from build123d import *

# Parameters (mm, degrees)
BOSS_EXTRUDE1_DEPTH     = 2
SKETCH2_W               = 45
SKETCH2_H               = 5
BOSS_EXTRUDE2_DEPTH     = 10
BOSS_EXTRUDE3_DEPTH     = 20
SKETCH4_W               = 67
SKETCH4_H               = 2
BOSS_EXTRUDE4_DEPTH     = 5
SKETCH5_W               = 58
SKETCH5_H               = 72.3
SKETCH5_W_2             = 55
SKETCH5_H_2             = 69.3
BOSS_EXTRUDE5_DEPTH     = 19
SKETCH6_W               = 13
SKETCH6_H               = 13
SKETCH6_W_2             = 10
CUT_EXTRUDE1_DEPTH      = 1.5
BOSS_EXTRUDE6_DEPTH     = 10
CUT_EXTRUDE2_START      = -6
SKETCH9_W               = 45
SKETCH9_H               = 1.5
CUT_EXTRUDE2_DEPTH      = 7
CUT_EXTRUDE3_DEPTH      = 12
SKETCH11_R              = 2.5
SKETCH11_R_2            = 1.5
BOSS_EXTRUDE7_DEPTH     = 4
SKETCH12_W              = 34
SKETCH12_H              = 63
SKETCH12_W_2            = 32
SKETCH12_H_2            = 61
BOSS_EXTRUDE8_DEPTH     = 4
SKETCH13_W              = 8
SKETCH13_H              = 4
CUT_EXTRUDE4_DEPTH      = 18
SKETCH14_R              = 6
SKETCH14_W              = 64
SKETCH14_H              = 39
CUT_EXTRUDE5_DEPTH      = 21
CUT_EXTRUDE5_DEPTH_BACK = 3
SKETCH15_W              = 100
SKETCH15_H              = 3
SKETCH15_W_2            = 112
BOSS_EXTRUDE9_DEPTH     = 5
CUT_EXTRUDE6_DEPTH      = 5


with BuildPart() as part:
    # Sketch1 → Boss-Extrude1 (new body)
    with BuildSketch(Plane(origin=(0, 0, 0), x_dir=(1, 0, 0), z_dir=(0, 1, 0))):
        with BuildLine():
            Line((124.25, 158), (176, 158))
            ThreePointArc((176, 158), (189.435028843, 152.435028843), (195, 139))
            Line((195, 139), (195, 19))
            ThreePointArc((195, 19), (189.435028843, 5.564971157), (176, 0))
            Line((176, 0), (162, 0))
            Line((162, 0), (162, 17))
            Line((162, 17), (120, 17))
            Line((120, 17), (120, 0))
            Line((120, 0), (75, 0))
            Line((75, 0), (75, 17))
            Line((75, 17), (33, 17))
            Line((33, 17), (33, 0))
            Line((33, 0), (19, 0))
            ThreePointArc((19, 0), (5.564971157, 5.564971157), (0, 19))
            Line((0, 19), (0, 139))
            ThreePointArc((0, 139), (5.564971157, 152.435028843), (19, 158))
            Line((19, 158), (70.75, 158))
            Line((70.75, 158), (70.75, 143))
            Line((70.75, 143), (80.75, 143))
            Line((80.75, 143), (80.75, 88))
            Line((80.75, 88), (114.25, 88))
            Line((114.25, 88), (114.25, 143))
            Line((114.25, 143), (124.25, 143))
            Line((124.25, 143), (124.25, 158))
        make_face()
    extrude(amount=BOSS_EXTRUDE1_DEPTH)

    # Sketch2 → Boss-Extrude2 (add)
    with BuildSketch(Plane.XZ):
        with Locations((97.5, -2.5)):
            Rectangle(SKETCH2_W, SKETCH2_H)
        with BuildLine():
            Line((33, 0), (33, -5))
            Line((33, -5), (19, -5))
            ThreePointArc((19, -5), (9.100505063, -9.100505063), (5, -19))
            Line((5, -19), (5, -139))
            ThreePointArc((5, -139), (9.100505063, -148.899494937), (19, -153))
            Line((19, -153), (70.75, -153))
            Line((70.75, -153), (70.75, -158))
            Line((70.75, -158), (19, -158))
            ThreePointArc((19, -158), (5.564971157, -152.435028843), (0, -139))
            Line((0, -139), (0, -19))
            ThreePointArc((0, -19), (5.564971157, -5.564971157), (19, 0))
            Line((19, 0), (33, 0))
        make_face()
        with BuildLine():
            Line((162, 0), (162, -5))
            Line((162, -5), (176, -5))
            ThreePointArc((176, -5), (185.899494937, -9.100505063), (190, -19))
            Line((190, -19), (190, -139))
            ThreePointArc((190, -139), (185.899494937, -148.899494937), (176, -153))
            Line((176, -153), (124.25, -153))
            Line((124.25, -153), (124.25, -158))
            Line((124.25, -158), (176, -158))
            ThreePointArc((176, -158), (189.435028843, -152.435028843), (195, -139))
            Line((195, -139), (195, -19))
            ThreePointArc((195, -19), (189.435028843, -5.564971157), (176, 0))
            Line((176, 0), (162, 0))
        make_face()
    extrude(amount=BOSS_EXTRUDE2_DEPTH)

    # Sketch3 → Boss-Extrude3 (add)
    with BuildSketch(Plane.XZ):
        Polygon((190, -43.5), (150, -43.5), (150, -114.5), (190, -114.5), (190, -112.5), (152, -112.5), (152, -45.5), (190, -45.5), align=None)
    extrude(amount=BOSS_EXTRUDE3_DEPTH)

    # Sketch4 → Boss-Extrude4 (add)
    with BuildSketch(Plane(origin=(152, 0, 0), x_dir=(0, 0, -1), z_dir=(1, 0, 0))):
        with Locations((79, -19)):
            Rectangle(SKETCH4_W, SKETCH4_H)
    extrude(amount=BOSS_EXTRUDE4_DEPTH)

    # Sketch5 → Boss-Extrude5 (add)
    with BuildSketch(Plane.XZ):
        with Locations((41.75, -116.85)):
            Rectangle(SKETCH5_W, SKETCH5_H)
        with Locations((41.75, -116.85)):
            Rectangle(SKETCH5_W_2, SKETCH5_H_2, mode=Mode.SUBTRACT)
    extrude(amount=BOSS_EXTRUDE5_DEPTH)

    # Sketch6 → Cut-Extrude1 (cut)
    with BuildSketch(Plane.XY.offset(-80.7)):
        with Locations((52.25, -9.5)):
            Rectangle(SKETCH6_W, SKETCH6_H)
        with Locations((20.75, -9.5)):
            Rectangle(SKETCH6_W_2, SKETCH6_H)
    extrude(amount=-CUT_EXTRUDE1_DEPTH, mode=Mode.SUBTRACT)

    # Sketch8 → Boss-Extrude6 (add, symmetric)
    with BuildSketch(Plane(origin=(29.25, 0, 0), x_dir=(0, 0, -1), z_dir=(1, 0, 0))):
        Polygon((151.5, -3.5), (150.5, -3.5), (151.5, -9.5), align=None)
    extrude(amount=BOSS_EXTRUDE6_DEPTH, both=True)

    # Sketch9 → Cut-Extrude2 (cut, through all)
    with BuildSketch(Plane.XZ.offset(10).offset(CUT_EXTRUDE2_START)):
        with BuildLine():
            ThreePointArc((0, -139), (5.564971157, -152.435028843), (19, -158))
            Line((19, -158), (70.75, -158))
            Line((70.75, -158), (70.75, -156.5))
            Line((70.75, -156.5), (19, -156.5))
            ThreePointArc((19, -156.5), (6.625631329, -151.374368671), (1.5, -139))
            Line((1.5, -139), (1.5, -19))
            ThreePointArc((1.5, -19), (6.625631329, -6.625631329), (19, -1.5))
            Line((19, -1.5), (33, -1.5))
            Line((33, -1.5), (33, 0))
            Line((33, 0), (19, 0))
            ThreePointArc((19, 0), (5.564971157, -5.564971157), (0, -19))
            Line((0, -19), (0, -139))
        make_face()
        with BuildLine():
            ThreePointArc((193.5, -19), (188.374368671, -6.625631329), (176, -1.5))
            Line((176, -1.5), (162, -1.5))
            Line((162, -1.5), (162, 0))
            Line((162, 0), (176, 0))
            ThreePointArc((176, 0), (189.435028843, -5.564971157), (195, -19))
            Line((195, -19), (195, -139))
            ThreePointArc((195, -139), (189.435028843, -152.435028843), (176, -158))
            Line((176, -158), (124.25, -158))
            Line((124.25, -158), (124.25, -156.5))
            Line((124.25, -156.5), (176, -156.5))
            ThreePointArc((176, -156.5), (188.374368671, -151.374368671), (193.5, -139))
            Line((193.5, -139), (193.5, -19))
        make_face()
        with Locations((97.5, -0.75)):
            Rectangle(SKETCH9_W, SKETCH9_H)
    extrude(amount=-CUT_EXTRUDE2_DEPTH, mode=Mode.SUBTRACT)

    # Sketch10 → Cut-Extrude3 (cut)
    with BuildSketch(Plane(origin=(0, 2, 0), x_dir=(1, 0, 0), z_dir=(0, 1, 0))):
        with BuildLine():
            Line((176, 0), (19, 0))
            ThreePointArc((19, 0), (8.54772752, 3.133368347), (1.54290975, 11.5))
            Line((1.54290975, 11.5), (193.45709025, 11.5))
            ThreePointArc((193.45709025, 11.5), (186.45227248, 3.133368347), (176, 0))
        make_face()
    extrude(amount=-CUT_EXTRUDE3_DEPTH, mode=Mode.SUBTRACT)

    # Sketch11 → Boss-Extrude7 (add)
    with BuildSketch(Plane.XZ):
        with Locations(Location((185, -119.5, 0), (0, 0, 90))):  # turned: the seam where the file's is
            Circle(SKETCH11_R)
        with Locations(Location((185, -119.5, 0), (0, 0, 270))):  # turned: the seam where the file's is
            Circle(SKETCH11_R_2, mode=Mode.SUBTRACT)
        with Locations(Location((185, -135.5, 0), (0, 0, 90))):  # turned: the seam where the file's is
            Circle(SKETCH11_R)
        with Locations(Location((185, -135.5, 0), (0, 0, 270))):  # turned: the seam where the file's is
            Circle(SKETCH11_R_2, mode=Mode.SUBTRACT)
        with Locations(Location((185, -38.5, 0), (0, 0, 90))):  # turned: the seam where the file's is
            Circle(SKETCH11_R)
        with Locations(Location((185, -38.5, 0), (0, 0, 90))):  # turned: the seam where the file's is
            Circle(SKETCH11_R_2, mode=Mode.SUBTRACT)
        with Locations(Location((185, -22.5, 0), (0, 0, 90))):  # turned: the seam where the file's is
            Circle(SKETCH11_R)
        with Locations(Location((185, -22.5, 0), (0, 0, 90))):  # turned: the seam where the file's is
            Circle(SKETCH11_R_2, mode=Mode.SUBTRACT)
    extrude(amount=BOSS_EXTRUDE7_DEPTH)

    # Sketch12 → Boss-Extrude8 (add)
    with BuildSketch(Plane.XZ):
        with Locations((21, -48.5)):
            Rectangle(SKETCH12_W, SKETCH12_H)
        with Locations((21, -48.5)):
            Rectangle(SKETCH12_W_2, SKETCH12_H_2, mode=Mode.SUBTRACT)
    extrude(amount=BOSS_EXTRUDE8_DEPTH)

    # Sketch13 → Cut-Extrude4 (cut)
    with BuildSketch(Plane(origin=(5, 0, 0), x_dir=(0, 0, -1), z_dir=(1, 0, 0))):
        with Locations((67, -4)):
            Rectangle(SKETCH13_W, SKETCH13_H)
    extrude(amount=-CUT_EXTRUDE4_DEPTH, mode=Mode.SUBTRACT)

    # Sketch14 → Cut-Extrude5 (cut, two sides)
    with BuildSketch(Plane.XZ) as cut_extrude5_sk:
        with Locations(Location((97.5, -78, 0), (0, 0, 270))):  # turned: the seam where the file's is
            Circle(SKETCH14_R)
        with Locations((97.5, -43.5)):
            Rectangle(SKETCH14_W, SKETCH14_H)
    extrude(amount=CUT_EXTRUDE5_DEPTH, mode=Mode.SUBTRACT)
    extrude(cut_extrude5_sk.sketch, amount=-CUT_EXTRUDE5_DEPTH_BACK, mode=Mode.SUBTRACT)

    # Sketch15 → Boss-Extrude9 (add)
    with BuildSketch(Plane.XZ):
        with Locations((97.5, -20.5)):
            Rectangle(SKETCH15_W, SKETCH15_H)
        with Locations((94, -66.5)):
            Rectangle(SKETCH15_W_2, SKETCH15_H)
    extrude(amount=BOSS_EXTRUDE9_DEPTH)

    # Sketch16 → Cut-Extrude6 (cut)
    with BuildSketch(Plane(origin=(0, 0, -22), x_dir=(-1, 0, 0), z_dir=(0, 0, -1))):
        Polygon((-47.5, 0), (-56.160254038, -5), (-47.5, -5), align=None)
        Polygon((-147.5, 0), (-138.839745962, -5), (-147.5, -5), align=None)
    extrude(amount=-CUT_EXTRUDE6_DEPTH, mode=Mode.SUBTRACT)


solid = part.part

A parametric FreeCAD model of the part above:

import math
import FreeCAD as App
import Part
import Sketcher
from FreeCAD import Vector
Q = App.Units.Quantity

doc = App.newDocument("Part")
body = doc.addObject("PartDesign::Body", "Body")

sketch1 = body.newObject("Sketcher::SketchObject", "Sketch")
sketch1.AttachmentSupport = (doc.getObject("XZ_Plane"), [""])
sketch1.MapMode = "FlatFace"
sketch1.addGeometry([
    Part.LineSegment(Vector(176, -158, 0), Vector(124, -158, 0)),
    Part.LineSegment(Vector(124, -158, 0), Vector(124, -143, 0)),
    Part.LineSegment(Vector(124, -143, 0), Vector(114, -143, 0)),
    Part.LineSegment(Vector(114, -143, 0), Vector(114, -88, 0)),
    Part.LineSegment(Vector(114, -88, 0), Vector(81, -88, 0)),
    Part.LineSegment(Vector(81, -88, 0), Vector(81, -143, 0)),
    Part.LineSegment(Vector(81, -143, 0), Vector(71, -143, 0)),
    Part.LineSegment(Vector(71, -143, 0), Vector(71, -158, 0)),
    Part.LineSegment(Vector(71, -158, 0), Vector(19, -158, 0)),
    Part.ArcOfCircle(Part.Circle(Vector(19, -139, 0), Vector(0, 0, 1), 19), math.radians(180), math.radians(270)),
    Part.LineSegment(Vector(0, -139, 0), Vector(0, -19, 0)),
    Part.ArcOfCircle(Part.Circle(Vector(19, -19, 0), Vector(0, 0, 1), 19), math.radians(90), math.radians(180)),
    Part.LineSegment(Vector(19, 0, 0), Vector(33, 0, 0)),
    Part.LineSegment(Vector(33, 0, 0), Vector(33, -17, 0)),
    Part.LineSegment(Vector(33, -17, 0), Vector(75, -17, 0)),
    Part.LineSegment(Vector(75, -17, 0), Vector(75, 0, 0)),
    Part.LineSegment(Vector(75, 0, 0), Vector(120, 0, 0)),
    Part.LineSegment(Vector(120, 0, 0), Vector(120, -17, 0)),
    Part.LineSegment(Vector(120, -17, 0), Vector(162, -17, 0)),
    Part.LineSegment(Vector(162, -17, 0), Vector(162, 0, 0)),
    Part.LineSegment(Vector(162, 0, 0), Vector(176, 0, 0)),
    Part.ArcOfCircle(Part.Circle(Vector(176, -19, 0), Vector(0, 0, 1), 19), math.radians(0), math.radians(90)),
    Part.LineSegment(Vector(195, -19, 0), Vector(195, -139, 0)),
    Part.ArcOfCircle(Part.Circle(Vector(176, -139, 0), Vector(0, 0, 1), 19), math.radians(-90), math.radians(0)),
], False)
sketch1.addConstraint([
    Sketcher.Constraint("Coincident", 0, 2, 1, 1),
    Sketcher.Constraint("Coincident", 1, 2, 2, 1),
    Sketcher.Constraint("Coincident", 2, 2, 3, 1),
    Sketcher.Constraint("Coincident", 3, 2, 4, 1),
    Sketcher.Constraint("Coincident", 4, 2, 5, 1),
    Sketcher.Constraint("Coincident", 5, 2, 6, 1),
    Sketcher.Constraint("Coincident", 6, 2, 7, 1),
    Sketcher.Constraint("Coincident", 7, 2, 8, 1),
    Sketcher.Constraint("Tangent", 8, 2, 9, 2),
    Sketcher.Constraint("Tangent", 9, 1, 10, 1),
    Sketcher.Constraint("Tangent", 10, 2, 11, 2),
    Sketcher.Constraint("Tangent", 11, 1, 12, 1),
    Sketcher.Constraint("Coincident", 12, 2, 13, 1),
    Sketcher.Constraint("Coincident", 13, 2, 14, 1),
    Sketcher.Constraint("Coincident", 14, 2, 15, 1),
    Sketcher.Constraint("Coincident", 15, 2, 16, 1),
    Sketcher.Constraint("Coincident", 16, 2, 17, 1),
    Sketcher.Constraint("Coincident", 17, 2, 18, 1),
    Sketcher.Constraint("Coincident", 18, 2, 19, 1),
    Sketcher.Constraint("Coincident", 19, 2, 20, 1),
    Sketcher.Constraint("Tangent", 20, 2, 21, 2),
    Sketcher.Constraint("Tangent", 21, 1, 22, 1),
    Sketcher.Constraint("Tangent", 22, 2, 23, 2),
    Sketcher.Constraint("Tangent", 23, 1, 0, 1),
    Sketcher.Constraint("Horizontal", 0),
    Sketcher.Constraint("Vertical", 1),
    Sketcher.Constraint("Horizontal", 2),
    Sketcher.Constraint("Vertical", 3),
    Sketcher.Constraint("Horizontal", 4),
    Sketcher.Constraint("Vertical", 5),
    Sketcher.Constraint("Horizontal", 6),
    Sketcher.Constraint("Vertical", 7),
    Sketcher.Constraint("Horizontal", 8),
    Sketcher.Constraint("Vertical", 10),
    Sketcher.Constraint("Horizontal", 12),
    Sketcher.Constraint("Vertical", 13),
    Sketcher.Constraint("Horizontal", 14),
    Sketcher.Constraint("Vertical", 15),
    Sketcher.Constraint("Horizontal", 16),
    Sketcher.Constraint("Vertical", 17),
    Sketcher.Constraint("Horizontal", 18),
    Sketcher.Constraint("Vertical", 19),
    Sketcher.Constraint("Horizontal", 20),
    Sketcher.Constraint("Vertical", 22),
    Sketcher.Constraint("Equal", 9, 11),
    Sketcher.Constraint("Equal", 11, 21),
    Sketcher.Constraint("Equal", 21, 23),
    Sketcher.Constraint("PointOnObject", 9, 1, -2),
    Sketcher.Constraint("PointOnObject", 11, 1, -1),
    Sketcher.Constraint("PointOnObject", 15, 2, -1),
    Sketcher.Constraint("PointOnObject", 19, 2, -1),
    Sketcher.Constraint("Horizontal", 9, 3, 23, 3),
    Sketcher.Constraint("Horizontal", 2, 2, 5, 2),
    Sketcher.Constraint("Horizontal", 14, 2, 17, 2),
    Sketcher.Constraint("Equal", 2, 6),
    Sketcher.Constraint("Equal", 0, 8),
    Sketcher.Constraint("Equal", 14, 18),
    Sketcher.Constraint("Equal", 12, 20),
    Sketcher.Constraint("Radius", 9, Q("19 mm")),
    Sketcher.Constraint("DistanceX", 2, 2, 2, 1, Q("10 mm")),
    Sketcher.Constraint("DistanceX", 12, 1, 12, 2, Q("14 mm")),
    Sketcher.Constraint("DistanceX", 14, 1, 14, 2, Q("42 mm")),
    Sketcher.Constraint("DistanceX", 16, 1, 16, 2, Q("45 mm")),
    Sketcher.Constraint("DistanceY", 1, 1, 1, 2, Q("15 mm")),
    Sketcher.Constraint("DistanceY", 3, 1, 3, 2, Q("55 mm")),
    Sketcher.Constraint("DistanceY", 10, 1, 10, 2, Q("120 mm")),
    Sketcher.Constraint("DistanceY", 13, 2, 13, 1, Q("17 mm")),
    Sketcher.Constraint("DistanceX", 4, 2, 4, 1, Q("33.5 mm")),
])
pad1 = body.newObject("PartDesign::Pad", "Pad")
pad1.Profile = sketch1
pad1.Length = 2
pad1.Reversed = True

sketch2 = body.newObject("Sketcher::SketchObject", "Sketch001")
sketch2.AttachmentSupport = (doc.getObject("XZ_Plane"), [""])
sketch2.MapMode = "FlatFace"
sketch2.addGeometry([
    Part.LineSegment(Vector(75, 0, 0), Vector(75, -5, 0)),
    Part.LineSegment(Vector(75, -5, 0), Vector(120, -5, 0)),
    Part.LineSegment(Vector(120, -5, 0), Vector(120, 0, 0)),
    Part.LineSegment(Vector(120, 0, 0), Vector(75, 0, 0)),
    Part.LineSegment(Vector(33, -5, 0), Vector(33, 0, 0)),
    Part.LineSegment(Vector(33, 0, 0), Vector(19, 0, 0)),
    Part.ArcOfCircle(Part.Circle(Vector(19, -19, 0), Vector(0, 0, 1), 19), math.radians(90), math.radians(180)),
    Part.LineSegment(Vector(0, -19, 0), Vector(0, -139, 0)),
    Part.ArcOfCircle(Part.Circle(Vector(19, -139, 0), Vector(0, 0, 1), 19), math.radians(180), math.radians(270)),
    Part.LineSegment(Vector(19, -158, 0), Vector(71, -158, 0)),
    Part.LineSegment(Vector(71, -158, 0), Vector(71, -153, 0)),
    Part.LineSegment(Vector(71, -153, 0), Vector(19, -153, 0)),
    Part.ArcOfCircle(Part.Circle(Vector(19, -139, 0), Vector(0, 0, 1), 14), math.radians(180), math.radians(270)),
    Part.LineSegment(Vector(5, -139, 0), Vector(5, -19, 0)),
    Part.ArcOfCircle(Part.Circle(Vector(19, -19, 0), Vector(0, 0, 1), 14), math.radians(90), math.radians(180)),
    Part.LineSegment(Vector(19, -5, 0), Vector(33, -5, 0)),
    Part.LineSegment(Vector(162, 0, 0), Vector(162, -5, 0)),
    Part.LineSegment(Vector(162, -5, 0), Vector(176, -5, 0)),
    Part.ArcOfCircle(Part.Circle(Vector(176, -19, 0), Vector(0, 0, 1), 14), math.radians(0), math.radians(90)),
    Part.LineSegment(Vector(190, -19, 0), Vector(190, -139, 0)),
    Part.ArcOfCircle(Part.Circle(Vector(176, -139, 0), Vector(0, 0, 1), 14), math.radians(-90), math.radians(0)),
    Part.LineSegment(Vector(176, -153, 0), Vector(124, -153, 0)),
    Part.LineSegment(Vector(124, -153, 0), Vector(124, -158, 0)),
    Part.LineSegment(Vector(124, -158, 0), Vector(176, -158, 0)),
    Part.ArcOfCircle(Part.Circle(Vector(176, -139, 0), Vector(0, 0, 1), 19), math.radians(-90), math.radians(0)),
    Part.LineSegment(Vector(195, -139, 0), Vector(195, -19, 0)),
    Part.ArcOfCircle(Part.Circle(Vector(176, -19, 0), Vector(0, 0, 1), 19), math.radians(0), math.radians(90)),
    Part.LineSegment(Vector(176, 0, 0), Vector(162, 0, 0)),
], False)
sketch2.addConstraint([
    Sketcher.Constraint("Coincident", 0, 2, 1, 1),
    Sketcher.Constraint("Coincident", 1, 2, 2, 1),
    Sketcher.Constraint("Coincident", 2, 2, 3, 1),
    Sketcher.Constraint("Coincident", 3, 2, 0, 1),
    Sketcher.Constraint("Coincident", 4, 2, 5, 1),
    Sketcher.Constraint("Tangent", 5, 2, 6, 1),
    Sketcher.Constraint("Tangent", 6, 2, 7, 1),
    Sketcher.Constraint("Tangent", 7, 2, 8, 1),
    Sketcher.Constraint("Tangent", 8, 2, 9, 1),
    Sketcher.Constraint("Coincident", 9, 2, 10, 1),
    Sketcher.Constraint("Coincident", 10, 2, 11, 1),
    Sketcher.Constraint("Tangent", 11, 2, 12, 2),
    Sketcher.Constraint("Tangent", 12, 1, 13, 1),
    Sketcher.Constraint("Tangent", 13, 2, 14, 2),
    Sketcher.Constraint("Tangent", 14, 1, 15, 1),
    Sketcher.Constraint("Coincident", 15, 2, 4, 1),
    Sketcher.Constraint("Coincident", 16, 2, 17, 1),
    Sketcher.Constraint("Tangent", 17, 2, 18, 2),
    Sketcher.Constraint("Tangent", 18, 1, 19, 1),
    Sketcher.Constraint("Tangent", 19, 2, 20, 2),
    Sketcher.Constraint("Tangent", 20, 1, 21, 1),
    Sketcher.Constraint("Coincident", 21, 2, 22, 1),
    Sketcher.Constraint("Coincident", 22, 2, 23, 1),
    Sketcher.Constraint("Tangent", 23, 2, 24, 1),
    Sketcher.Constraint("Tangent", 24, 2, 25, 1),
    Sketcher.Constraint("Tangent", 25, 2, 26, 1),
    Sketcher.Constraint("Tangent", 26, 2, 27, 1),
    Sketcher.Constraint("Coincident", 27, 2, 16, 1),
    Sketcher.Constraint("Vertical", 0),
    Sketcher.Constraint("Horizontal", 1),
    Sketcher.Constraint("Vertical", 2),
    Sketcher.Constraint("Horizontal", 3),
    Sketcher.Constraint("Vertical", 4),
    Sketcher.Constraint("Horizontal", 5),
    Sketcher.Constraint("Vertical", 7),
    Sketcher.Constraint("Horizontal", 9),
    Sketcher.Constraint("Vertical", 10),
    Sketcher.Constraint("Horizontal", 11),
    Sketcher.Constraint("Vertical", 13),
    Sketcher.Constraint("Horizontal", 15),
    Sketcher.Constraint("Vertical", 16),
    Sketcher.Constraint("Horizontal", 17),
    Sketcher.Constraint("Vertical", 19),
    Sketcher.Constraint("Horizontal", 21),
    Sketcher.Constraint("Vertical", 22),
    Sketcher.Constraint("Horizontal", 23),
    Sketcher.Constraint("Vertical", 25),
    Sketcher.Constraint("Horizontal", 27),
    Sketcher.Constraint("Coincident", 12, 3, 8, 3),
    Sketcher.Constraint("Coincident", 14, 3, 6, 3),
    Sketcher.Constraint("Coincident", 24, 3, 20, 3),
    Sketcher.Constraint("Coincident", 26, 3, 18, 3),
    Sketcher.Constraint("Equal", 6, 8),
    Sketcher.Constraint("Equal", 14, 18),
    Sketcher.Constraint("Equal", 18, 20),
    Sketcher.Constraint("Equal", 8, 24),
    Sketcher.Constraint("PointOnObject", 2, 2, -1),
    Sketcher.Constraint("PointOnObject", 4, 2, -1),
    Sketcher.Constraint("PointOnObject", 6, 2, -2),
    Sketcher.Constraint("PointOnObject", 26, 2, -1),
    Sketcher.Constraint("Horizontal", 12, 3, 20, 3),
    Sketcher.Constraint("Horizontal", 1, 2, 14, 1),
    Sketcher.Constraint("Equal", 15, 17),
    Sketcher.Constraint("Equal", 11, 21),
    Sketcher.Constraint("Radius", 6, Q("19 mm")),
    Sketcher.Constraint("Radius", 12, Q("14 mm")),
    Sketcher.Constraint("DistanceX", 1, 1, 1, 2, Q("45 mm")),
    Sketcher.Constraint("DistanceX", 5, 2, 5, 1, Q("14 mm")),
    Sketcher.Constraint("DistanceY", 7, 2, 7, 1, Q("120 mm")),
    Sketcher.Constraint("DistanceX", -1, 1, 18, 3, Q("176 mm")),
    Sketcher.Constraint("DistanceX", -1, 1, 0, 2, Q("75 mm")),
    Sketcher.Constraint("DistanceX", 9, 1, 9, 2, Q("51.75 mm")),
])
pad2 = body.newObject("PartDesign::Pad", "Pad001")
pad2.Profile = sketch2
pad2.Length = 10

sketch3 = body.newObject("Sketcher::SketchObject", "Sketch002")
sketch3.AttachmentSupport = (doc.getObject("XZ_Plane"), [""])
sketch3.MapMode = "FlatFace"
sketch3.addGeometry([
    Part.LineSegment(Vector(190, -43.5, 0), Vector(150, -43.5, 0)),
    Part.LineSegment(Vector(150, -43.5, 0), Vector(150, -114.5, 0)),
    Part.LineSegment(Vector(150, -114.5, 0), Vector(190, -114.5, 0)),
    Part.LineSegment(Vector(190, -114.5, 0), Vector(190, -112.5, 0)),
    Part.LineSegment(Vector(190, -112.5, 0), Vector(152, -112.5, 0)),
    Part.LineSegment(Vector(152, -112.5, 0), Vector(152, -45.5, 0)),
    Part.LineSegment(Vector(152, -45.5, 0), Vector(190, -45.5, 0)),
    Part.LineSegment(Vector(190, -45.5, 0), Vector(190, -43.5, 0)),
], False)
sketch3.addConstraint([
    Sketcher.Constraint("Coincident", 0, 2, 1, 1),
    Sketcher.Constraint("Coincident", 1, 2, 2, 1),
    Sketcher.Constraint("Coincident", 2, 2, 3, 1),
    Sketcher.Constraint("Coincident", 3, 2, 4, 1),
    Sketcher.Constraint("Coincident", 4, 2, 5, 1),
    Sketcher.Constraint("Coincident", 5, 2, 6, 1),
    Sketcher.Constraint("Coincident", 6, 2, 7, 1),
    Sketcher.Constraint("Coincident", 7, 2, 0, 1),
    Sketcher.Constraint("Horizontal", 0),
    Sketcher.Constraint("Vertical", 1),
    Sketcher.Constraint("Horizontal", 2),
    Sketcher.Constraint("Vertical", 3),
    Sketcher.Constraint("Horizontal", 4),
    Sketcher.Constraint("Vertical", 5),
    Sketcher.Constraint("Horizontal", 6),
    Sketcher.Constraint("Vertical", 7),
    Sketcher.Constraint("Vertical", 3, 2, 6, 2),
    Sketcher.Constraint("Equal", 3, 7),
    Sketcher.Constraint("DistanceX", 0, 2, 0, 1, Q("40 mm")),
    Sketcher.Constraint("DistanceX", 4, 2, 4, 1, Q("38 mm")),
    Sketcher.Constraint("DistanceY", 1, 2, 1, 1, Q("71 mm")),
    Sketcher.Constraint("DistanceY", 3, 1, 3, 2, Q("2 mm")),
    Sketcher.Constraint("DistanceX", -1, 1, 0, 2, Q("150 mm")),
    Sketcher.Constraint("DistanceY", 0, 2, -1, 1, Q("43.5 mm")),
])
pad3 = body.newObject("PartDesign::Pad", "Pad002")
pad3.Profile = sketch3
pad3.Length = 20

sketch4 = body.newObject("Sketcher::SketchObject", "Sketch003")
sketch4.AttachmentSupport = (doc.getObject("YZ_Plane"), [""])
sketch4.MapMode = "FlatFace"
sketch4.AttachmentOffset = App.Placement(Vector(0, 0, 152), App.Rotation())
sketch4.addGeometry([
    Part.LineSegment(Vector(-18, -45.5, 0), Vector(-20, -45.5, 0)),
    Part.LineSegment(Vector(-20, -45.5, 0), Vector(-20, -112.5, 0)),
    Part.LineSegment(Vector(-20, -112.5, 0), Vector(-18, -112.5, 0)),
    Part.LineSegment(Vector(-18, -112.5, 0), Vector(-18, -45.5, 0)),
], False)
sketch4.addConstraint([
    Sketcher.Constraint("Coincident", 0, 2, 1, 1),
    Sketcher.Constraint("Coincident", 1, 2, 2, 1),
    Sketcher.Constraint("Coincident", 2, 2, 3, 1),
    Sketcher.Constraint("Coincident", 3, 2, 0, 1),
    Sketcher.Constraint("Horizontal", 0),
    Sketcher.Constraint("Vertical", 1),
    Sketcher.Constraint("Horizontal", 2),
    Sketcher.Constraint("Vertical", 3),
    Sketcher.Constraint("DistanceX", 0, 2, 0, 1, Q("2 mm")),
    Sketcher.Constraint("DistanceY", 1, 2, 1, 1, Q("67 mm")),
    Sketcher.Constraint("DistanceX", 0, 2, -1, 1, Q("20 mm")),
    Sketcher.Constraint("DistanceY", 0, 2, -1, 1, Q("45.5 mm")),
])
pad4 = body.newObject("PartDesign::Pad", "Pad003")
pad4.Profile = sketch4
pad4.Length = 5

sketch5 = body.newObject("Sketcher::SketchObject", "Sketch004")
sketch5.AttachmentSupport = (doc.getObject("XZ_Plane"), [""])
sketch5.MapMode = "FlatFace"
sketch5.addGeometry([
    Part.LineSegment(Vector(13, -81, 0), Vector(13, -153, 0)),
    Part.LineSegment(Vector(13, -153, 0), Vector(71, -153, 0)),
    Part.LineSegment(Vector(71, -153, 0), Vector(71, -81, 0)),
    Part.LineSegment(Vector(71, -81, 0), Vector(13, -81, 0)),
    Part.LineSegment(Vector(69, -152, 0), Vector(14, -152, 0)),
    Part.LineSegment(Vector(14, -152, 0), Vector(14, -82, 0)),
    Part.LineSegment(Vector(14, -82, 0), Vector(69, -82, 0)),
    Part.LineSegment(Vector(69, -82, 0), Vector(69, -152, 0)),
], False)
sketch5.addConstraint([
    Sketcher.Constraint("Coincident", 0, 2, 1, 1),
    Sketcher.Constraint("Coincident", 1, 2, 2, 1),
    Sketcher.Constraint("Coincident", 2, 2, 3, 1),
    Sketcher.Constraint("Coincident", 3, 2, 0, 1),
    Sketcher.Constraint("Coincident", 4, 2, 5, 1),
    Sketcher.Constraint("Coincident", 5, 2, 6, 1),
    Sketcher.Constraint("Coincident", 6, 2, 7, 1),
    Sketcher.Constraint("Coincident", 7, 2, 4, 1),
    Sketcher.Constraint("Vertical", 0),
    Sketcher.Constraint("Horizontal", 1),
    Sketcher.Constraint("Vertical", 2),
    Sketcher.Constraint("Horizontal", 3),
    Sketcher.Constraint("Horizontal", 4),
    Sketcher.Constraint("Vertical", 5),
    Sketcher.Constraint("Horizontal", 6),
    Sketcher.Constraint("Vertical", 7),
    Sketcher.Constraint("DistanceX", 1, 1, 1, 2, Q("58 mm")),
    Sketcher.Constraint("DistanceX", 4, 2, 4, 1, Q("55 mm")),
    Sketcher.Constraint("DistanceY", 0, 2, 0, 1, Q("72.3 mm")),
    Sketcher.Constraint("DistanceY", 5, 1, 5, 2, Q("69.3 mm")),
    Sketcher.Constraint("DistanceY", 0, 2, -1, 1, Q("153 mm")),
    Sketcher.Constraint("DistanceY", 4, 2, -1, 1, Q("151.5 mm")),
    Sketcher.Constraint("DistanceX", 0, 2, 4, 2, Q("1.5 mm")),
    Sketcher.Constraint("DistanceX", -1, 1, 0, 2, Q("12.75 mm")),
])
pad5 = body.newObject("PartDesign::Pad", "Pad004")
pad5.Profile = sketch5
pad5.Length = 19

sketch6 = body.newObject("Sketcher::SketchObject", "Sketch005")
sketch6.AttachmentSupport = (doc.getObject("XY_Plane"), [""])
sketch6.MapMode = "FlatFace"
sketch6.AttachmentOffset = App.Placement(Vector(0, 0, -80.7), App.Rotation())
sketch6.addGeometry([
    Part.LineSegment(Vector(46, -3, 0), Vector(46, -16, 0)),
    Part.LineSegment(Vector(46, -16, 0), Vector(59, -16, 0)),
    Part.LineSegment(Vector(59, -16, 0), Vector(59, -3, 0)),
    Part.LineSegment(Vector(59, -3, 0), Vector(46, -3, 0)),
    Part.LineSegment(Vector(16, -3, 0), Vector(16, -16, 0)),
    Part.LineSegment(Vector(16, -16, 0), Vector(26, -16, 0)),
    Part.LineSegment(Vector(26, -16, 0), Vector(26, -3, 0)),
    Part.LineSegment(Vector(26, -3, 0), Vector(16, -3, 0)),
], False)
sketch6.addConstraint([
    Sketcher.Constraint("Coincident", 0, 2, 1, 1),
    Sketcher.Constraint("Coincident", 1, 2, 2, 1),
    Sketcher.Constraint("Coincident", 2, 2, 3, 1),
    Sketcher.Constraint("Coincident", 3, 2, 0, 1),
    Sketcher.Constraint("Coincident", 4, 2, 5, 1),
    Sketcher.Constraint("Coincident", 5, 2, 6, 1),
    Sketcher.Constraint("Coincident", 6, 2, 7, 1),
    Sketcher.Constraint("Coincident", 7, 2, 4, 1),
    Sketcher.Constraint("Vertical", 0),
    Sketcher.Constraint("Horizontal", 1),
    Sketcher.Constraint("Vertical", 2),
    Sketcher.Constraint("Horizontal", 3),
    Sketcher.Constraint("Vertical", 4),
    Sketcher.Constraint("Horizontal", 5),
    Sketcher.Constraint("Vertical", 6),
    Sketcher.Constraint("Horizontal", 7),
    Sketcher.Constraint("Horizontal", 1, 2, 4, 2),
    Sketcher.Constraint("Horizontal", 3, 2, 6, 2),
    Sketcher.Constraint("Equal", 3, 0),
    Sketcher.Constraint("DistanceX", 1, 1, 1, 2, Q("13 mm")),
    Sketcher.Constraint("DistanceX", 5, 1, 5, 2, Q("10 mm")),
    Sketcher.Constraint("DistanceY", 0, 2, -1, 1, Q("16 mm")),
    Sketcher.Constraint("DistanceX", 4, 2, 0, 2, Q("30 mm")),
    Sketcher.Constraint("DistanceX", -1, 1, 0, 2, Q("45.75 mm")),
])
pocket1 = body.newObject("PartDesign::Pocket", "Pocket")
pocket1.Profile = sketch6
pocket1.Length = 1.5

sketch7 = body.newObject("Sketcher::SketchObject", "Sketch006")
sketch7.AttachmentSupport = (doc.getObject("YZ_Plane"), [""])
sketch7.MapMode = "FlatFace"
sketch7.AttachmentOffset = App.Placement(Vector(0, 0, 29.25), App.Rotation())
sketch7.addGeometry([
    Part.LineSegment(Vector(-3.5, -151.5, 0), Vector(-3.5, -150.5, 0)),
    Part.LineSegment(Vector(-3.5, -150.5, 0), Vector(-9.5, -151.5, 0)),
    Part.LineSegment(Vector(-9.5, -151.5, 0), Vector(-3.5, -151.5, 0)),
], False)
sketch7.addConstraint([
    Sketcher.Constraint("Coincident", 0, 2, 1, 1),
    Sketcher.Constraint("Coincident", 1, 2, 2, 1),
    Sketcher.Constraint("Coincident", 2, 2, 0, 1),
    Sketcher.Constraint("Vertical", 0),
    Sketcher.Constraint("Horizontal", 2),
    Sketcher.Constraint("DistanceX", 2, 1, 2, 2, Q("6 mm")),
    Sketcher.Constraint("DistanceY", 0, 1, 0, 2, Q("1 mm")),
    Sketcher.Constraint("DistanceX", 0, 2, -1, 1, Q("3.5 mm")),
    Sketcher.Constraint("DistanceY", 0, 2, -1, 1, Q("150.5 mm")),
])
pad6 = body.newObject("PartDesign::Pad", "Pad005")
pad6.Profile = sketch7
pad6.Length = 20
pad6.Midplane = True

sketch8 = body.newObject("Sketcher::SketchObject", "Sketch007")
sketch8.AttachmentSupport = (doc.getObject("XZ_Plane"), [""])
sketch8.MapMode = "FlatFace"
sketch8.AttachmentOffset = App.Placement(Vector(0, 0, 4), App.Rotation())
sketch8.addGeometry([
    Part.ArcOfCircle(Part.Circle(Vector(19, -139, 0), Vector(0, 0, 1), 19), math.radians(180), math.radians(270)),
    Part.LineSegment(Vector(19, -158, 0), Vector(70.8, -158, 0)),
    Part.LineSegment(Vector(70.8, -158, 0), Vector(70.8, -156.5, 0)),
    Part.LineSegment(Vector(70.8, -156.5, 0), Vector(19, -156.5, 0)),
    Part.ArcOfCircle(Part.Circle(Vector(19, -139, 0), Vector(0, 0, 1), 17.5), math.radians(180), math.radians(270)),
    Part.LineSegment(Vector(1.5, -139, 0), Vector(1.5, -19, 0)),
    Part.ArcOfCircle(Part.Circle(Vector(19, -19, 0), Vector(0, 0, 1), 17.5), math.radians(90), math.radians(180)),
    Part.LineSegment(Vector(19, -1.5, 0), Vector(33, -1.5, 0)),
    Part.LineSegment(Vector(33, -1.5, 0), Vector(33, 0, 0)),
    Part.LineSegment(Vector(33, 0, 0), Vector(19, 0, 0)),
    Part.ArcOfCircle(Part.Circle(Vector(19, -19, 0), Vector(0, 0, 1), 19), math.radians(90), math.radians(180)),
    Part.LineSegment(Vector(0, -19, 0), Vector(0, -139, 0)),
    Part.ArcOfCircle(Part.Circle(Vector(176, -19, 0), Vector(0, 0, 1), 17.5), math.radians(0), math.radians(90)),
    Part.LineSegment(Vector(193.5, -19, 0), Vector(193.5, -139, 0)),
    Part.ArcOfCircle(Part.Circle(Vector(176, -139, 0), Vector(0, 0, 1), 17.5), math.radians(-90), math.radians(0)),
    Part.LineSegment(Vector(176, -156.5, 0), Vector(124.2, -156.5, 0)),
    Part.LineSegment(Vector(124.2, -156.5, 0), Vector(124.2, -158, 0)),
    Part.LineSegment(Vector(124.2, -158, 0), Vector(176, -158, 0)),
    Part.ArcOfCircle(Part.Circle(Vector(176, -139, 0), Vector(0, 0, 1), 19), math.radians(-90), math.radians(0)),
    Part.LineSegment(Vector(195, -139, 0), Vector(195, -19, 0)),
    Part.ArcOfCircle(Part.Circle(Vector(176, -19, 0), Vector(0, 0, 1), 19), math.radians(0), math.radians(90)),
    Part.LineSegment(Vector(176, 0, 0), Vector(162, 0, 0)),
    Part.LineSegment(Vector(162, 0, 0), Vector(162, -1.5, 0)),
    Part.LineSegment(Vector(162, -1.5, 0), Vector(176, -1.5, 0)),
    Part.LineSegment(Vector(75, 0, 0), Vector(75, -1.5, 0)),
    Part.LineSegment(Vector(75, -1.5, 0), Vector(120, -1.5, 0)),
    Part.LineSegment(Vector(120, -1.5, 0), Vector(120, 0, 0)),
    Part.LineSegment(Vector(120, 0, 0), Vector(75, 0, 0)),
], False)
sketch8.addConstraint([
    Sketcher.Constraint("Tangent", 0, 2, 1, 1),
    Sketcher.Constraint("Coincident", 1, 2, 2, 1),
    Sketcher.Constraint("Coincident", 2, 2, 3, 1),
    Sketcher.Constraint("Tangent", 3, 2, 4, 2),
    Sketcher.Constraint("Tangent", 4, 1, 5, 1),
    Sketcher.Constraint("Tangent", 5, 2, 6, 2),
    Sketcher.Constraint("Tangent", 6, 1, 7, 1),
    Sketcher.Constraint("Coincident", 7, 2, 8, 1),
    Sketcher.Constraint("Coincident", 8, 2, 9, 1),
    Sketcher.Constraint("Tangent", 9, 2, 10, 1),
    Sketcher.Constraint("Tangent", 10, 2, 11, 1),
    Sketcher.Constraint("Tangent", 11, 2, 0, 1),
    Sketcher.Constraint("Tangent", 12, 1, 13, 1),
    Sketcher.Constraint("Tangent", 13, 2, 14, 2),
    Sketcher.Constraint("Tangent", 14, 1, 15, 1),
    Sketcher.Constraint("Coincident", 15, 2, 16, 1),
    Sketcher.Constraint("Coincident", 16, 2, 17, 1),
    Sketcher.Constraint("Tangent", 17, 2, 18, 1),
    Sketcher.Constraint("Tangent", 18, 2, 19, 1),
    Sketcher.Constraint("Tangent", 19, 2, 20, 1),
    Sketcher.Constraint("Tangent", 20, 2, 21, 1),
    Sketcher.Constraint("Coincident", 21, 2, 22, 1),
    Sketcher.Constraint("Coincident", 22, 2, 23, 1),
    Sketcher.Constraint("Tangent", 23, 2, 12, 2),
    Sketcher.Constraint("Coincident", 24, 2, 25, 1),
    Sketcher.Constraint("Coincident", 25, 2, 26, 1),
    Sketcher.Constraint("Coincident", 26, 2, 27, 1),
    Sketcher.Constraint("Coincident", 27, 2, 24, 1),
    Sketcher.Constraint("Horizontal", 1),
    Sketcher.Constraint("Vertical", 2),
    Sketcher.Constraint("Horizontal", 3),
    Sketcher.Constraint("Vertical", 5),
    Sketcher.Constraint("Horizontal", 7),
    Sketcher.Constraint("Vertical", 8),
    Sketcher.Constraint("Horizontal", 9),
    Sketcher.Constraint("Vertical", 11),
    Sketcher.Constraint("Vertical", 13),
    Sketcher.Constraint("Horizontal", 15),
    Sketcher.Constraint("Vertical", 16),
    Sketcher.Constraint("Horizontal", 17),
    Sketcher.Constraint("Vertical", 19),
    Sketcher.Constraint("Horizontal", 21),
    Sketcher.Constraint("Vertical", 22),
    Sketcher.Constraint("Horizontal", 23),
    Sketcher.Constraint("Vertical", 24),
    Sketcher.Constraint("Horizontal", 25),
    Sketcher.Constraint("Vertical", 26),
    Sketcher.Constraint("Horizontal", 27),
    Sketcher.Constraint("Coincident", 4, 3, 0, 3),
    Sketcher.Constraint("Coincident", 10, 3, 6, 3),
    Sketcher.Constraint("Coincident", 18, 3, 14, 3),
    Sketcher.Constraint("Coincident", 20, 3, 12, 3),
    Sketcher.Constraint("Equal", 4, 6),
    Sketcher.Constraint("Equal", 6, 12),
    Sketcher.Constraint("Equal", 12, 14),
    Sketcher.Constraint("Equal", 10, 18),
    Sketcher.Constraint("PointOnObject", 8, 2, -1),
    Sketcher.Constraint("PointOnObject", 10, 2, -2),
    Sketcher.Constraint("PointOnObject", 20, 2, -1),
    Sketcher.Constraint("PointOnObject", 26, 2, -1),
    Sketcher.Constraint("Horizontal", 4, 3, 14, 3),
    Sketcher.Constraint("Horizontal", 23, 2, 24, 2),
    Sketcher.Constraint("Equal", 3, 15),
    Sketcher.Constraint("Equal", 9, 21),
    Sketcher.Constraint("Radius", 0, Q("19 mm")),
    Sketcher.Constraint("Radius", 4, Q("17.5 mm")),
    Sketcher.Constraint("DistanceX", 7, 1, 7, 2, Q("14 mm")),
    Sketcher.Constraint("DistanceX", 25, 1, 25, 2, Q("45 mm")),
    Sketcher.Constraint("DistanceY", 5, 1, 5, 2, Q("120 mm")),
    Sketcher.Constraint("DistanceX", -1, 1, 12, 3, Q("176 mm")),
    Sketcher.Constraint("DistanceX", -1, 1, 24, 2, Q("75 mm")),
    Sketcher.Constraint("DistanceX", 1, 1, 1, 2, Q("51.75 mm")),
])
pocket2 = body.newObject("PartDesign::Pocket", "Pocket001")
pocket2.Profile = sketch8
pocket2.Type = "ThroughAll"

sketch9 = body.newObject("Sketcher::SketchObject", "Sketch008")
sketch9.AttachmentSupport = (doc.getObject("XZ_Plane"), [""])
sketch9.MapMode = "FlatFace"
sketch9.AttachmentOffset = App.Placement(Vector(0, 0, -2), App.Rotation())
sketch9.addGeometry([
    Part.LineSegment(Vector(19, 0, 0), Vector(176, 0, 0)),
    Part.ArcOfCircle(Part.Circle(Vector(176, -19, 0), Vector(0, 0, 1), 19), math.radians(23), math.radians(90)),
    Part.LineSegment(Vector(193, -12, 0), Vector(2, -12, 0)),
    Part.ArcOfCircle(Part.Circle(Vector(19, -19, 0), Vector(0, 0, 1), 19), math.radians(90), math.radians(157)),
], False)
sketch9.addConstraint([
    Sketcher.Constraint("Tangent", 0, 2, 1, 2),
    Sketcher.Constraint("Coincident", 1, 1, 2, 1),
    Sketcher.Constraint("Coincident", 2, 2, 3, 2),
    Sketcher.Constraint("Tangent", 3, 1, 0, 1),
    Sketcher.Constraint("Horizontal", 0),
    Sketcher.Constraint("Horizontal", 2),
    Sketcher.Constraint("Equal", 1, 3),
    Sketcher.Constraint("PointOnObject", 0, 2, -1),
    Sketcher.Constraint("Radius", 1, Q("19 mm")),
    Sketcher.Constraint("DistanceX", 0, 1, 0, 2, Q("157 mm")),
    Sketcher.Constraint("DistanceX", -1, 1, 1, 3, Q("176 mm")),
    Sketcher.Constraint("DistanceY", 1, 1, -1, 1, Q("11.5 mm")),
])
pocket3 = body.newObject("PartDesign::Pocket", "Pocket002")
pocket3.Profile = sketch9
pocket3.Length = 12
pocket3.Reversed = True

sketch10 = body.newObject("Sketcher::SketchObject", "Sketch009")
sketch10.AttachmentSupport = (doc.getObject("XZ_Plane"), [""])
sketch10.MapMode = "FlatFace"
sketch10.addGeometry([
    Part.Circle(Vector(185, -119.5, 0), Vector(0, 0, 1), 2.5),
    Part.Circle(Vector(185, -119.5, 0), Vector(0, 0, 1), 1.5),
    Part.Circle(Vector(185, -135.5, 0), Vector(0, 0, 1), 2.5),
    Part.Circle(Vector(185, -135.5, 0), Vector(0, 0, 1), 1.5),
    Part.Circle(Vector(185, -38.5, 0), Vector(0, 0, 1), 2.5),
    Part.Circle(Vector(185, -38.5, 0), Vector(0, 0, 1), 1.5),
    Part.Circle(Vector(185, -22.5, 0), Vector(0, 0, 1), 2.5),
    Part.Circle(Vector(185, -22.5, 0), Vector(0, 0, 1), 1.5),
], False)
sketch10.addConstraint([
    Sketcher.Constraint("Coincident", 1, 3, 0, 3),
    Sketcher.Constraint("Coincident", 3, 3, 2, 3),
    Sketcher.Constraint("Coincident", 5, 3, 4, 3),
    Sketcher.Constraint("Coincident", 7, 3, 6, 3),
    Sketcher.Constraint("Equal", 0, 2),
    Sketcher.Constraint("Equal", 1, 3),
    Sketcher.Constraint("Equal", 2, 4),
    Sketcher.Constraint("Equal", 3, 5),
    Sketcher.Constraint("Equal", 4, 6),
    Sketcher.Constraint("Equal", 5, 7),
    Sketcher.Constraint("Vertical", 1, 3, 2, 3),
    Sketcher.Constraint("Vertical", 3, 3, 4, 3),
    Sketcher.Constraint("Vertical", 5, 3, 6, 3),
    Sketcher.Constraint("Diameter", 0, Q("5 mm")),
    Sketcher.Constraint("Diameter", 1, Q("3 mm")),
    Sketcher.Constraint("DistanceX", -1, 1, 0, 3, Q("185 mm")),
    Sketcher.Constraint("DistanceY", 2, 3, 0, 3, Q("16 mm")),
    Sketcher.Constraint("DistanceY", 0, 3, 4, 3, Q("81 mm")),
    Sketcher.Constraint("DistanceY", 4, 3, 6, 3, Q("16 mm")),
    Sketcher.Constraint("DistanceY", 0, 3, -1, 1, Q("119.5 mm")),
])
pad7 = body.newObject("PartDesign::Pad", "Pad006")
pad7.Profile = sketch10
pad7.Length = 4

sketch11 = body.newObject("Sketcher::SketchObject", "Sketch010")
sketch11.AttachmentSupport = (doc.getObject("XZ_Plane"), [""])
sketch11.MapMode = "FlatFace"
sketch11.addGeometry([
    Part.LineSegment(Vector(4, -17, 0), Vector(4, -80, 0)),
    Part.LineSegment(Vector(4, -80, 0), Vector(38, -80, 0)),
    Part.LineSegment(Vector(38, -80, 0), Vector(38, -17, 0)),
    Part.LineSegment(Vector(38, -17, 0), Vector(4, -17, 0)),
    Part.LineSegment(Vector(37, -79, 0), Vector(5, -79, 0)),
    Part.LineSegment(Vector(5, -79, 0), Vector(5, -18, 0)),
    Part.LineSegment(Vector(5, -18, 0), Vector(37, -18, 0)),
    Part.LineSegment(Vector(37, -18, 0), Vector(37, -79, 0)),
], False)
sketch11.addConstraint([
    Sketcher.Constraint("Coincident", 0, 2, 1, 1),
    Sketcher.Constraint("Coincident", 1, 2, 2, 1),
    Sketcher.Constraint("Coincident", 2, 2, 3, 1),
    Sketcher.Constraint("Coincident", 3, 2, 0, 1),
    Sketcher.Constraint("Coincident", 4, 2, 5, 1),
    Sketcher.Constraint("Coincident", 5, 2, 6, 1),
    Sketcher.Constraint("Coincident", 6, 2, 7, 1),
    Sketcher.Constraint("Coincident", 7, 2, 4, 1),
    Sketcher.Constraint("Vertical", 0),
    Sketcher.Constraint("Horizontal", 1),
    Sketcher.Constraint("Vertical", 2),
    Sketcher.Constraint("Horizontal", 3),
    Sketcher.Constraint("Horizontal", 4),
    Sketcher.Constraint("Vertical", 5),
    Sketcher.Constraint("Horizontal", 6),
    Sketcher.Constraint("Vertical", 7),
    Sketcher.Constraint("DistanceX", 1, 1, 1, 2, Q("34 mm")),
    Sketcher.Constraint("DistanceX", 4, 2, 4, 1, Q("32 mm")),
    Sketcher.Constraint("DistanceY", 0, 2, 0, 1, Q("63 mm")),
    Sketcher.Constraint("DistanceY", 5, 1, 5, 2, Q("61 mm")),
    Sketcher.Constraint("DistanceX", -1, 1, 0, 2, Q("4 mm")),
    Sketcher.Constraint("DistanceY", 0, 2, -1, 1, Q("80 mm")),
    Sketcher.Constraint("DistanceX", -1, 1, 4, 2, Q("5 mm")),
    Sketcher.Constraint("DistanceY", 4, 2, -1, 1, Q("79 mm")),
])
pad8 = body.newObject("PartDesign::Pad", "Pad007")
pad8.Profile = sketch11
pad8.Length = 4

sketch12 = body.newObject("Sketcher::SketchObject", "Sketch011")
sketch12.AttachmentSupport = (doc.getObject("YZ_Plane"), [""])
sketch12.MapMode = "FlatFace"
sketch12.AttachmentOffset = App.Placement(Vector(0, 0, 5), App.Rotation())
sketch12.addGeometry([
    Part.LineSegment(Vector(-2, -63, 0), Vector(-6, -63, 0)),
    Part.LineSegment(Vector(-6, -63, 0), Vector(-6, -71, 0)),
    Part.LineSegment(Vector(-6, -71, 0), Vector(-2, -71, 0)),
    Part.LineSegment(Vector(-2, -71, 0), Vector(-2, -63, 0)),
], False)
sketch12.addConstraint([
    Sketcher.Constraint("Coincident", 0, 2, 1, 1),
    Sketcher.Constraint("Coincident", 1, 2, 2, 1),
    Sketcher.Constraint("Coincident", 2, 2, 3, 1),
    Sketcher.Constraint("Coincident", 3, 2, 0, 1),
    Sketcher.Constraint("Horizontal", 0),
    Sketcher.Constraint("Vertical", 1),
    Sketcher.Constraint("Horizontal", 2),
    Sketcher.Constraint("Vertical", 3),
    Sketcher.Constraint("DistanceX", 0, 2, 0, 1, Q("4 mm")),
    Sketcher.Constraint("DistanceY", 1, 2, 1, 1, Q("8 mm")),
    Sketcher.Constraint("DistanceX", 0, 2, -1, 1, Q("6 mm")),
    Sketcher.Constraint("DistanceY", 0, 2, -1, 1, Q("63 mm")),
])
pocket4 = body.newObject("PartDesign::Pocket", "Pocket003")
pocket4.Profile = sketch12
pocket4.Length = 18

sketch13 = body.newObject("Sketcher::SketchObject", "Sketch012")
sketch13.AttachmentSupport = (doc.getObject("XZ_Plane"), [""])
sketch13.MapMode = "FlatFace"
sketch13.addGeometry([
    Part.Circle(Vector(98, -78, 0), Vector(0, 0, 1), 6),
    Part.LineSegment(Vector(66, -24, 0), Vector(66, -63, 0)),
    Part.LineSegment(Vector(66, -63, 0), Vector(130, -63, 0)),
    Part.LineSegment(Vector(130, -63, 0), Vector(130, -24, 0)),
    Part.LineSegment(Vector(130, -24, 0), Vector(66, -24, 0)),
], False)
sketch13.addConstraint([
    Sketcher.Constraint("Coincident", 1, 2, 2, 1),
    Sketcher.Constraint("Coincident", 2, 2, 3, 1),
    Sketcher.Constraint("Coincident", 3, 2, 4, 1),
    Sketcher.Constraint("Coincident", 4, 2, 1, 1),
    Sketcher.Constraint("Vertical", 1),
    Sketcher.Constraint("Horizontal", 2),
    Sketcher.Constraint("Vertical", 3),
    Sketcher.Constraint("Horizontal", 4),
    Sketcher.Constraint("Diameter", 0, Q("12 mm")),
    Sketcher.Constraint("DistanceX", 2, 1, 2, 2, Q("64 mm")),
    Sketcher.Constraint("DistanceY", 1, 2, 1, 1, Q("39 mm")),
    Sketcher.Constraint("DistanceY", 0, 3, -1, 1, Q("78 mm")),
    Sketcher.Constraint("DistanceY", 1, 2, -1, 1, Q("63 mm")),
    Sketcher.Constraint("DistanceX", 1, 2, 0, 3, Q("32 mm")),
    Sketcher.Constraint("DistanceX", -1, 1, 0, 3, Q("97.5 mm")),
])
pocket5 = body.newObject("PartDesign::Pocket", "Pocket004")
pocket5.Profile = sketch13
pocket5.Type = "ThroughAll"
pocket5.Midplane = True

sketch14 = body.newObject("Sketcher::SketchObject", "Sketch013")
sketch14.AttachmentSupport = (doc.getObject("XZ_Plane"), [""])
sketch14.MapMode = "FlatFace"
sketch14.addGeometry([
    Part.LineSegment(Vector(47.5, -19, 0), Vector(47.5, -22, 0)),
    Part.LineSegment(Vector(47.5, -22, 0), Vector(147.5, -22, 0)),
    Part.LineSegment(Vector(147.5, -22, 0), Vector(147.5, -19, 0)),
    Part.LineSegment(Vector(147.5, -19, 0), Vector(47.5, -19, 0)),
    Part.LineSegment(Vector(38, -65, 0), Vector(38, -68, 0)),
    Part.LineSegment(Vector(38, -68, 0), Vector(150, -68, 0)),
    Part.LineSegment(Vector(150, -68, 0), Vector(150, -65, 0)),
    Part.LineSegment(Vector(150, -65, 0), Vector(38, -65, 0)),
], False)
sketch14.addConstraint([
    Sketcher.Constraint("Coincident", 0, 2, 1, 1),
    Sketcher.Constraint("Coincident", 1, 2, 2, 1),
    Sketcher.Constraint("Coincident", 2, 2, 3, 1),
    Sketcher.Constraint("Coincident", 3, 2, 0, 1),
    Sketcher.Constraint("Coincident", 4, 2, 5, 1),
    Sketcher.Constraint("Coincident", 5, 2, 6, 1),
    Sketcher.Constraint("Coincident", 6, 2, 7, 1),
    Sketcher.Constraint("Coincident", 7, 2, 4, 1),
    Sketcher.Constraint("Vertical", 0),
    Sketcher.Constraint("Horizontal", 1),
    Sketcher.Constraint("Vertical", 2),
    Sketcher.Constraint("Horizontal", 3),
    Sketcher.Constraint("Vertical", 4),
    Sketcher.Constraint("Horizontal", 5),
    Sketcher.Constraint("Vertical", 6),
    Sketcher.Constraint("Horizontal", 7),
    Sketcher.Constraint("Equal", 2, 4),
    Sketcher.Constraint("DistanceX", 1, 1, 1, 2, Q("100 mm")),
    Sketcher.Constraint("DistanceX", 5, 1, 5, 2, Q("112 mm")),
    Sketcher.Constraint("DistanceY", 0, 2, 0, 1, Q("3 mm")),
    Sketcher.Constraint("DistanceY", 0, 2, -1, 1, Q("22 mm")),
    Sketcher.Constraint("DistanceX", -1, 1, 4, 2, Q("38 mm")),
    Sketcher.Constraint("DistanceY", 4, 2, -1, 1, Q("68 mm")),
    Sketcher.Constraint("DistanceX", -1, 1, 0, 2, Q("47.5 mm")),
])
pad9 = body.newObject("PartDesign::Pad", "Pad008")
pad9.Profile = sketch14
pad9.Length = 5

sketch15 = body.newObject("Sketcher::SketchObject", "Sketch014")
sketch15.AttachmentSupport = (doc.getObject("XY_Plane"), [""])
sketch15.MapMode = "FlatFace"
sketch15.AttachmentOffset = App.Placement(Vector(0, 0, -22), App.Rotation())
sketch15.addGeometry([
    Part.LineSegment(Vector(48, 0, 0), Vector(56, -5, 0)),
    Part.LineSegment(Vector(56, -5, 0), Vector(48, -5, 0)),
    Part.LineSegment(Vector(48, -5, 0), Vector(48, 0, 0)),
    Part.LineSegment(Vector(139, -5, 0), Vector(148, 0, 0)),
    Part.LineSegment(Vector(148, 0, 0), Vector(148, -5, 0)),
    Part.LineSegment(Vector(148, -5, 0), Vector(139, -5, 0)),
], False)
sketch15.addConstraint([
    Sketcher.Constraint("Coincident", 0, 2, 1, 1),
    Sketcher.Constraint("Coincident", 1, 2, 2, 1),
    Sketcher.Constraint("Coincident", 2, 2, 0, 1),
    Sketcher.Constraint("Coincident", 3, 2, 4, 1),
    Sketcher.Constraint("Coincident", 4, 2, 5, 1),
    Sketcher.Constraint("Coincident", 5, 2, 3, 1),
    Sketcher.Constraint("Horizontal", 1),
    Sketcher.Constraint("Vertical", 2),
    Sketcher.Constraint("Vertical", 4),
    Sketcher.Constraint("Horizontal", 5),
    Sketcher.Constraint("PointOnObject", 2, 2, -1),
    Sketcher.Constraint("PointOnObject", 3, 2, -1),
    Sketcher.Constraint("Horizontal", 1, 2, 4, 2),
    Sketcher.Constraint("Equal", 1, 5),
    Sketcher.Constraint("DistanceY", 2, 1, 2, 2, Q("5 mm")),
    Sketcher.Constraint("Angle", 0, Q("-30 deg")),
    Sketcher.Constraint("DistanceX", 2, 2, 3, 2, Q("100 mm")),
    Sketcher.Constraint("DistanceX", -1, 1, 1, 2, Q("47.5 mm")),
])
pocket6 = body.newObject("PartDesign::Pocket", "Pocket005")
pocket6.Profile = sketch15
pocket6.Length = 5
pocket6.Reversed = True

doc.recompute()
